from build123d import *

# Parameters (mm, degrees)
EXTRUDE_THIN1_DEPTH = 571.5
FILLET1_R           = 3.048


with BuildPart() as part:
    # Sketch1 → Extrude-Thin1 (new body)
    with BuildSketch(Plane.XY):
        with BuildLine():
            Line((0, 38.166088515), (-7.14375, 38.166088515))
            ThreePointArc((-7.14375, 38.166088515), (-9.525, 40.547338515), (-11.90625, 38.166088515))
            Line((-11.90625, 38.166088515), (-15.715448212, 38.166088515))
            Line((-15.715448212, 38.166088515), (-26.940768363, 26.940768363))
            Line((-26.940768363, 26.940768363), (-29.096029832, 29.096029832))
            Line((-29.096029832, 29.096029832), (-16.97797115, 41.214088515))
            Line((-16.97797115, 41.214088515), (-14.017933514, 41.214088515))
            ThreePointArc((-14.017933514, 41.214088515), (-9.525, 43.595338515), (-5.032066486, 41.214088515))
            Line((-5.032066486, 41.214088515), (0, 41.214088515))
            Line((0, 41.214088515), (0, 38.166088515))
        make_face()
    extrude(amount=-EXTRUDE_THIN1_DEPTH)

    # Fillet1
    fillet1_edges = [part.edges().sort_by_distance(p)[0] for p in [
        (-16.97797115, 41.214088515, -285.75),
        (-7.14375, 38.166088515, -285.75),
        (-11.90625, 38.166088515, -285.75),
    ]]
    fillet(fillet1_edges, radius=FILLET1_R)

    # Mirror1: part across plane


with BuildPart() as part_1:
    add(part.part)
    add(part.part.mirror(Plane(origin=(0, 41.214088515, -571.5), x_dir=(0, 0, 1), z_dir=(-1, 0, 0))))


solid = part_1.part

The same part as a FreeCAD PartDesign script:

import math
import FreeCAD as App
import Part
import Sketcher
Q = App.Units.Quantity


def edges_at(feature, points):
    """Names of the edges that pass closest to the given points."""
    edges = feature.Shape.Edges
    near = lambda p: min(range(len(edges)), key=lambda i: edges[i].distToShape(Part.Vertex(*p))[0])
    return sorted({f"Edge{near(p) + 1}" for p in points})

doc = App.newDocument("Part")
params = doc.addObject("Spreadsheet::Sheet", "Params")
for row, (alias, value) in enumerate([
    ("sketch1_radius", "0.09375 in"),
    ("sketch1_height", "0.12 in"),
    ("sketch1_length", "0.12 in"),
    ("sketch1_width", "0.28125 in"),
    ("sketch1_length2", "0.625 in"),
    ("pad1_length", "22.5 in"),
    ("fillet_radius", "0.12 in"),
], start=1):
    params.set(f"A{row}", alias)
    params.set(f"B{row}", "=" + value)
    params.setAlias(f"B{row}", alias)

body = doc.addObject("PartDesign::Body", "Body")

sketch1 = body.newObject("Sketcher::SketchObject", "Sketch")
sketch1.AttachmentSupport = (doc.getObject("XY_Plane"), [""])
sketch1.MapMode = "FlatFace"
sketch1.addGeometry([
    Part.LineSegment(App.Vector(-7.1, 38.2, 0), App.Vector(0, 38.2, 0)),
    Part.LineSegment(App.Vector(0, 38.2, 0), App.Vector(0, 41.2, 0)),
    Part.LineSegment(App.Vector(0, 41.2, 0), App.Vector(-5, 41.2, 0)),
    Part.ArcOfCircle(Part.Circle(App.Vector(-9.5, 38.2, 0), App.Vector(0, 0, 1), 5.4), math.radians(34), math.radians(146)),
    Part.LineSegment(App.Vector(-14, 41.2, 0), App.Vector(-17, 41.2, 0)),
    Part.LineSegment(App.Vector(-17, 41.2, 0), App.Vector(-29.1, 29.1, 0)),
    Part.LineSegment(App.Vector(-29.1, 29.1, 0), App.Vector(-26.9, 26.9, 0)),
    Part.LineSegment(App.Vector(-26.9, 26.9, 0), App.Vector(-15.7, 38.2, 0)),
    Part.LineSegment(App.Vector(-15.7, 38.2, 0), App.Vector(-11.9, 38.2, 0)),
    Part.ArcOfCircle(Part.Circle(App.Vector(-9.5, 38.2, 0), App.Vector(0, 0, 1), 2.4), math.radians(0), math.radians(180)),
], False)
sketch1.addConstraint([
    Sketcher.Constraint("Coincident", 0, 2, 1, 1),
    Sketcher.Constraint("Coincident", 1, 2, 2, 1),
    Sketcher.Constraint("Coincident", 2, 2, 3, 1),
    Sketcher.Constraint("Coincident", 3, 2, 4, 1),
    Sketcher.Constraint("Coincident", 4, 2, 5, 1),
    Sketcher.Constraint("Coincident", 5, 2, 6, 1),
    Sketcher.Constraint("Coincident", 6, 2, 7, 1),
    Sketcher.Constraint("Coincident", 7, 2, 8, 1),
    Sketcher.Constraint("Coincident", 8, 2, 9, 2),
    Sketcher.Constraint("Coincident", 9, 1, 0, 1),
    Sketcher.Constraint("Horizontal", 0),
    Sketcher.Constraint("Vertical", 1),
    Sketcher.Constraint("Horizontal", 2),
    Sketcher.Constraint("Horizontal", 4),
    Sketcher.Constraint("Horizontal", 8),
    Sketcher.Constraint("Coincident", 9, 3, 3, 3),
    Sketcher.Constraint("PointOnObject", 0, 2, -2),
    Sketcher.Constraint("Perpendicular", 5, 6),
    Sketcher.Constraint("Perpendicular", 6, 7),
    Sketcher.Constraint("Horizontal", 9, 3, 0, 2),
    Sketcher.Constraint("Horizontal", 2, 2, 3, 2),
    Sketcher.Constraint("Horizontal", 0, 2, 7, 2),
    Sketcher.Constraint("Angle", 5, Q("-135 deg")),
    Sketcher.Constraint("Radius", 9, Q("0.09375 in")),
    Sketcher.Constraint("DistanceY", 1, 1, 1, 2, Q("0.12 in")),
    Sketcher.Constraint("Distance", 6, Q("0.12 in")),
    Sketcher.Constraint("DistanceX", 0, 1, 0, 2, Q("0.28125 in")),
    Sketcher.Constraint("Distance", 7, Q("0.625 in")),
    Sketcher.Constraint("Radius", 3, Q("5.42925 mm")),
    Sketcher.Constraint("DistanceX", 8, 1, 8, 2, Q("3.809198 mm")),
    Sketcher.Constraint("DistanceY", -1, 1, 3, 3, Q("38.166089 mm")),
])
sketch1.setExpression("Constraints[23]", "Params.sketch1_radius")
sketch1.setExpression("Constraints[24]", "Params.sketch1_height")
sketch1.setExpression("Constraints[25]", "Params.sketch1_length")
sketch1.setExpression("Constraints[26]", "Params.sketch1_width")
sketch1.setExpression("Constraints[27]", "Params.sketch1_length2")
pad1 = body.newObject("PartDesign::Pad", "Pad")
pad1.Profile = sketch1
pad1.setExpression("Length", "Params.pad1_length")
pad1.Reversed = True
doc.recompute()

fillet = body.newObject("PartDesign::Fillet", "Fillet")
fillet.Base = (pad1, edges_at(pad1, [(-16.978, 41.214, -285.75), (-7.144, 38.166, -285.75), (-11.906, 38.166, -285.75)]))
fillet.setExpression("Radius", "Params.fillet_radius")
body2 = doc.addObject("PartDesign::Body", "Body001")
doc.recompute()

body2.BaseFeature = body
doc.recompute()

mirroring = doc.addObject("Part::Mirroring", "Mirroring")
mirroring.Source = body
mirroring.Base = App.Vector(0, 41.214089, -571.5)
mirroring.Normal = App.Vector(-1, 0, 0)
body3 = doc.addObject("PartDesign::Body", "Body002")
body3.BaseFeature = mirroring
boolean = body2.newObject("PartDesign::Boolean", "Boolean")
boolean.Type = "Fuse"
boolean.addObjects([body3])
doc.recompute()
mirroring.Visibility = False

doc.recompute()
